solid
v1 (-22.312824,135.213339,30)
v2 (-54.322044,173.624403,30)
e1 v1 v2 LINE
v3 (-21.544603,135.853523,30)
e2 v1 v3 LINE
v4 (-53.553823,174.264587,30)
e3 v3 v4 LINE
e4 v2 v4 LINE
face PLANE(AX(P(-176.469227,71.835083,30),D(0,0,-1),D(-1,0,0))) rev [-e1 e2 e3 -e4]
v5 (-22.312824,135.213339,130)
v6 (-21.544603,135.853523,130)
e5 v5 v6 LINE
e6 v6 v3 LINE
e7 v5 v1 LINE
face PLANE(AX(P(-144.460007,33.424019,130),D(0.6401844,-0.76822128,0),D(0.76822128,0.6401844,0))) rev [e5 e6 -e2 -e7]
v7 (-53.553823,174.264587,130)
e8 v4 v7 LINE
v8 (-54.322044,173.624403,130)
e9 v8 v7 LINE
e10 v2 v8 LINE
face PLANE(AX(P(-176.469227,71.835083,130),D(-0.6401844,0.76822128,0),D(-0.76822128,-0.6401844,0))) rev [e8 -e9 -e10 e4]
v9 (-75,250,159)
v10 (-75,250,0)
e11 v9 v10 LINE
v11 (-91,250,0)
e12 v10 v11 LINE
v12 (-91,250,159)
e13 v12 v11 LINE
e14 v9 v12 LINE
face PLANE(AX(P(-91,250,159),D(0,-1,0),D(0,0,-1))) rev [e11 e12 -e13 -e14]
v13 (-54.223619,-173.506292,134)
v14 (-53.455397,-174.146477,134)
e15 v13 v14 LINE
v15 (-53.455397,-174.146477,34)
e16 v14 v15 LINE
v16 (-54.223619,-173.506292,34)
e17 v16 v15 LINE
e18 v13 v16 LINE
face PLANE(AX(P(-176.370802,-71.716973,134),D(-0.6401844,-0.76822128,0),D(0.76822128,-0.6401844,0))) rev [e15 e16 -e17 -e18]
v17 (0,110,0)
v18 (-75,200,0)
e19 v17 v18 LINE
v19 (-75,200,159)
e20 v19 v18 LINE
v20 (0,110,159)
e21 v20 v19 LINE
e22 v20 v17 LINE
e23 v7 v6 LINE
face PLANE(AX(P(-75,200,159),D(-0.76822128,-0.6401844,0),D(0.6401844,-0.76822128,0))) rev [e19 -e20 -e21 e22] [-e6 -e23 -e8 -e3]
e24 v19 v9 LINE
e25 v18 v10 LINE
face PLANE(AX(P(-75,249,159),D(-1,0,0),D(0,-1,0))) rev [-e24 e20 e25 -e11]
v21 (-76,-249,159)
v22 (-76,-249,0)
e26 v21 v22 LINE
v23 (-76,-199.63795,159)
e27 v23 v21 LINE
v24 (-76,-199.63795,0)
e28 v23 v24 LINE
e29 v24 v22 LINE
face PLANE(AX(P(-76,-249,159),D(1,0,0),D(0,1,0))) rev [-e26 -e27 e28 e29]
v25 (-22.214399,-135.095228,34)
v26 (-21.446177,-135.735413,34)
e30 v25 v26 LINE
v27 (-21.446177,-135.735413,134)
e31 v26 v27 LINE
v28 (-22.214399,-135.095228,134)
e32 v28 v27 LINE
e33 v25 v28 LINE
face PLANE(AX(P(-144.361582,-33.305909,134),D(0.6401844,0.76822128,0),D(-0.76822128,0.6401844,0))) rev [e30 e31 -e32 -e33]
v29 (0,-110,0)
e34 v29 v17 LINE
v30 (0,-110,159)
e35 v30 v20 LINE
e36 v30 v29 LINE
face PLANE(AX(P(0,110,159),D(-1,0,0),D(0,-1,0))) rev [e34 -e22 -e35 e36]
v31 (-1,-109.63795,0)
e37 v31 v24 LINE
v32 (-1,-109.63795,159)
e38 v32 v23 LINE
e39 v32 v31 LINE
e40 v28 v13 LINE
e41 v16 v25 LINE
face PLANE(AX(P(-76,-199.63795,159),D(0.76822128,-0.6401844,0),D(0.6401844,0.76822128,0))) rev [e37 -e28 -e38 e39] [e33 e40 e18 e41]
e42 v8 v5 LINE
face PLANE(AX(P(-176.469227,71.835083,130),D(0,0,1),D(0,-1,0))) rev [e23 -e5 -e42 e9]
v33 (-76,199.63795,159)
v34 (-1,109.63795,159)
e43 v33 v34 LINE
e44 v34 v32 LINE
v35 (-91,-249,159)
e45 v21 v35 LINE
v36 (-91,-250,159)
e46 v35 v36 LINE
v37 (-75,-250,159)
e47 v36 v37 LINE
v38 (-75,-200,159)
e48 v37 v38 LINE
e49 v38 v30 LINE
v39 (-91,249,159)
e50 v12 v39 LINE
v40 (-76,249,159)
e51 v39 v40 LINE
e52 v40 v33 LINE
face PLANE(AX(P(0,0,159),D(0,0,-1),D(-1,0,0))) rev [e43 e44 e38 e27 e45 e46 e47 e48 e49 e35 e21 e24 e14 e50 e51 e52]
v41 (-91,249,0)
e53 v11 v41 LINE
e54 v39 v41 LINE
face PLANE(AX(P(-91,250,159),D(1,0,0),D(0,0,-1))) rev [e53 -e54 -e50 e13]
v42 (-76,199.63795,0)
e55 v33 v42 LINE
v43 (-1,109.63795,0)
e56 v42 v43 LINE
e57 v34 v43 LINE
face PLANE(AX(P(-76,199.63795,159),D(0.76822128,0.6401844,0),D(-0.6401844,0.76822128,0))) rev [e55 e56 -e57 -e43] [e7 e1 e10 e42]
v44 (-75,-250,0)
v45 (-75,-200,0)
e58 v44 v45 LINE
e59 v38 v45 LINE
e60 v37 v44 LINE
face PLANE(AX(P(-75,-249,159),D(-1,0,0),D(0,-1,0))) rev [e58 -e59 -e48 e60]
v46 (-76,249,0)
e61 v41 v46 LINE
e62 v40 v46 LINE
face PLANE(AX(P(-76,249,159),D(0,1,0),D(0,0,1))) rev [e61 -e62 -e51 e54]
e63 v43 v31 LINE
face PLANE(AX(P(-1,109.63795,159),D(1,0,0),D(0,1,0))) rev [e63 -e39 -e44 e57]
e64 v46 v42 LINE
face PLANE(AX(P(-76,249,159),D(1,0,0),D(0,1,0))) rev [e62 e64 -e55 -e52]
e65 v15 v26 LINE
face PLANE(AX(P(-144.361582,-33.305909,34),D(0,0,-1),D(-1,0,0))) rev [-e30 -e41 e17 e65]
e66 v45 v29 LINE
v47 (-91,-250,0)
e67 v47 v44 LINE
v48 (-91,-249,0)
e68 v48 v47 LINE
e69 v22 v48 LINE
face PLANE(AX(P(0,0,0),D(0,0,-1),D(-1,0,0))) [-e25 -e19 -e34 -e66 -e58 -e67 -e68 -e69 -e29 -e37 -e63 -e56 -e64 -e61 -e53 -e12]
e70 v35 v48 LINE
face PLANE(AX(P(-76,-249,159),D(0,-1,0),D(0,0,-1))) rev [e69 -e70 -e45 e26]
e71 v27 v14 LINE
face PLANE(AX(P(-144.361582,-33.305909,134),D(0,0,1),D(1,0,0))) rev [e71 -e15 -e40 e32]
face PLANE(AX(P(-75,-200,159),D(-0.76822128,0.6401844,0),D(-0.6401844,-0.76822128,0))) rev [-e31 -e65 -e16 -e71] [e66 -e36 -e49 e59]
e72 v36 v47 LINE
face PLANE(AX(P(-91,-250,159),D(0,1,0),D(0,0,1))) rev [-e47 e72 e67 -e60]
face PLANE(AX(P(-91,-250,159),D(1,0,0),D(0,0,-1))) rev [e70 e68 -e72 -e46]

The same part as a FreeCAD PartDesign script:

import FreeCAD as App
import Part
import Sketcher
Q = App.Units.Quantity


def add_polygon(sketch, points):
    """Adds a closed chain of lines whose ends are joined by coincident constraints."""
    first, n = sketch.GeometryCount, len(points)
    for a, b in zip(points, points[1:] + points[:1]):
        sketch.addGeometry(Part.LineSegment(App.Vector(*a, 0), App.Vector(*b, 0)), False)
    for i in range(n):
        sketch.addConstraint(Sketcher.Constraint("Coincident", first + i, 2, first + (i + 1) % n, 1))

doc = App.newDocument("Part")
body = doc.addObject("PartDesign::Body", "Body")

sketch1 = doc.addObject("Sketcher::SketchObject", "Sketch")
body.addObject(sketch1)
sketch1.AttachmentSupport = (doc.XY_Plane, [""])
sketch1.MapMode = "FlatFace"
add_polygon(sketch1, [(0, -110), (0, 110), (-75, 200), (-75, 250), (-91, 250), (-91, 249), (-76, 249), (-76, 199.6), (-1, 109.6), (-1, -109.6), (-76, -199.6), (-76, -249), (-91, -249), (-91, -250), (-75, -250), (-75, -200)])
sketch1.addConstraint([
    Sketcher.Constraint("Vertical", 0),
    Sketcher.Constraint("Vertical", 2),
    Sketcher.Constraint("Horizontal", 3),
    Sketcher.Constraint("Vertical", 4),
    Sketcher.Constraint("Horizontal", 5),
    Sketcher.Constraint("Vertical", 6),
    Sketcher.Constraint("Vertical", 8),
    Sketcher.Constraint("Vertical", 10),
    Sketcher.Constraint("Horizontal", 11),
    Sketcher.Constraint("Vertical", 12),
    Sketcher.Constraint("Horizontal", 13),
    Sketcher.Constraint("Vertical", 14),
    Sketcher.Constraint("Symmetric", 0, 2, 15, 2, -1, 1),
    Sketcher.Constraint("Symmetric", 6, 2, 9, 2, -1),
    Sketcher.Constraint("Symmetric", 4, 2, 11, 2, -1),
    Sketcher.Constraint("Symmetric", 2, 2, 13, 2, -1),
    Sketcher.Constraint("Parallel", 1, 7),
    Sketcher.Constraint("Parallel", 9, 15),
    Sketcher.Constraint("Equal", 2, 14),
    Sketcher.Constraint("Equal", 1, 7),
    Sketcher.Constraint("DistanceX", 3, 2, 3, 1, Q("16 mm")),
    Sketcher.Constraint("DistanceX", 5, 1, 5, 2, Q("15 mm")),
    Sketcher.Constraint("DistanceY", 0, 1, 0, 2, Q("220 mm")),
    Sketcher.Constraint("DistanceY", 2, 1, 2, 2, Q("50 mm")),
    Sketcher.Constraint("DistanceY", 4, 2, 4, 1, Q("1 mm")),
    Sketcher.Constraint("DistanceX", 1, 2, -1, 1, Q("75 mm")),
    Sketcher.Constraint("DistanceY", -1, 1, 1, 2, Q("200 mm")),
    Sketcher.Constraint("DistanceY", 8, 2, 8, 1, Q("219.2759 mm")),
])
pad1 = doc.addObject("PartDesign::Pad", "Pad")
body.addObject(pad1)
pad1.Profile = sketch1
pad1.Length = 159

sketch2 = doc.addObject("Sketcher::SketchObject", "Sketch001")
body.addObject(sketch2)
sketch2.Placement = App.Placement(App.Vector(54.098361, -45.081967, 0), App.Rotation(App.Vector(0, 0, -1), App.Vector(0.6401844, 0.76822128, 0), App.Vector(0.76822128, -0.6401844, 0), "ZXY"))
add_polygon(sketch2, [(-134, -118), (-134, -168), (-34, -168), (-34, -118)])
sketch2.addConstraint([
    Sketcher.Constraint("Vertical", 0),
    Sketcher.Constraint("Horizontal", 1),
    Sketcher.Constraint("Vertical", 2),
    Sketcher.Constraint("Horizontal", 3),
    Sketcher.Constraint("DistanceX", 1, 1, 1, 2, Q("100 mm")),
    Sketcher.Constraint("DistanceY", 0, 2, 0, 1, Q("50 mm")),
    Sketcher.Constraint("DistanceX", 0, 2, -1, 1, Q("134 mm")),
    Sketcher.Constraint("DistanceY", 0, 2, -1, 1, Q("168.004341 mm")),
])
pocket1 = doc.addObject("PartDesign::Pocket", "Pocket")
body.addObject(pocket1)
pocket1.Profile = sketch2
pocket1.Length = 160

sketch3 = doc.addObject("Sketcher::SketchObject", "Sketch002")
body.addObject(sketch3)
sketch3.Placement = App.Placement(App.Vector(54.098361, 45.081967, 0), App.Rotation(App.Vector(0, 0, -1), App.Vector(-0.6401844, 0.76822128, 0), App.Vector(0.76822128, 0.6401844, 0), "ZXY"))
add_polygon(sketch3, [(-130, 168), (-130, 118), (-30, 118), (-30, 168)])
sketch3.addConstraint([
    Sketcher.Constraint("Vertical", 0),
    Sketcher.Constraint("Horizontal", 1),
    Sketcher.Constraint("Vertical", 2),
    Sketcher.Constraint("Horizontal", 3),
    Sketcher.Constraint("DistanceX", 1, 1, 1, 2, Q("100 mm")),
    Sketcher.Constraint("DistanceY", 0, 2, 0, 1, Q("50 mm")),
    Sketcher.Constraint("DistanceX", 0, 2, -1, 1, Q("130 mm")),
    Sketcher.Constraint("DistanceY", -1, 1, 0, 2, Q("118.158086 mm")),
])
pocket2 = doc.addObject("PartDesign::Pocket", "Pocket001")
body.addObject(pocket2)
pocket2.Profile = sketch3
pocket2.Length = 160

doc.recompute()
